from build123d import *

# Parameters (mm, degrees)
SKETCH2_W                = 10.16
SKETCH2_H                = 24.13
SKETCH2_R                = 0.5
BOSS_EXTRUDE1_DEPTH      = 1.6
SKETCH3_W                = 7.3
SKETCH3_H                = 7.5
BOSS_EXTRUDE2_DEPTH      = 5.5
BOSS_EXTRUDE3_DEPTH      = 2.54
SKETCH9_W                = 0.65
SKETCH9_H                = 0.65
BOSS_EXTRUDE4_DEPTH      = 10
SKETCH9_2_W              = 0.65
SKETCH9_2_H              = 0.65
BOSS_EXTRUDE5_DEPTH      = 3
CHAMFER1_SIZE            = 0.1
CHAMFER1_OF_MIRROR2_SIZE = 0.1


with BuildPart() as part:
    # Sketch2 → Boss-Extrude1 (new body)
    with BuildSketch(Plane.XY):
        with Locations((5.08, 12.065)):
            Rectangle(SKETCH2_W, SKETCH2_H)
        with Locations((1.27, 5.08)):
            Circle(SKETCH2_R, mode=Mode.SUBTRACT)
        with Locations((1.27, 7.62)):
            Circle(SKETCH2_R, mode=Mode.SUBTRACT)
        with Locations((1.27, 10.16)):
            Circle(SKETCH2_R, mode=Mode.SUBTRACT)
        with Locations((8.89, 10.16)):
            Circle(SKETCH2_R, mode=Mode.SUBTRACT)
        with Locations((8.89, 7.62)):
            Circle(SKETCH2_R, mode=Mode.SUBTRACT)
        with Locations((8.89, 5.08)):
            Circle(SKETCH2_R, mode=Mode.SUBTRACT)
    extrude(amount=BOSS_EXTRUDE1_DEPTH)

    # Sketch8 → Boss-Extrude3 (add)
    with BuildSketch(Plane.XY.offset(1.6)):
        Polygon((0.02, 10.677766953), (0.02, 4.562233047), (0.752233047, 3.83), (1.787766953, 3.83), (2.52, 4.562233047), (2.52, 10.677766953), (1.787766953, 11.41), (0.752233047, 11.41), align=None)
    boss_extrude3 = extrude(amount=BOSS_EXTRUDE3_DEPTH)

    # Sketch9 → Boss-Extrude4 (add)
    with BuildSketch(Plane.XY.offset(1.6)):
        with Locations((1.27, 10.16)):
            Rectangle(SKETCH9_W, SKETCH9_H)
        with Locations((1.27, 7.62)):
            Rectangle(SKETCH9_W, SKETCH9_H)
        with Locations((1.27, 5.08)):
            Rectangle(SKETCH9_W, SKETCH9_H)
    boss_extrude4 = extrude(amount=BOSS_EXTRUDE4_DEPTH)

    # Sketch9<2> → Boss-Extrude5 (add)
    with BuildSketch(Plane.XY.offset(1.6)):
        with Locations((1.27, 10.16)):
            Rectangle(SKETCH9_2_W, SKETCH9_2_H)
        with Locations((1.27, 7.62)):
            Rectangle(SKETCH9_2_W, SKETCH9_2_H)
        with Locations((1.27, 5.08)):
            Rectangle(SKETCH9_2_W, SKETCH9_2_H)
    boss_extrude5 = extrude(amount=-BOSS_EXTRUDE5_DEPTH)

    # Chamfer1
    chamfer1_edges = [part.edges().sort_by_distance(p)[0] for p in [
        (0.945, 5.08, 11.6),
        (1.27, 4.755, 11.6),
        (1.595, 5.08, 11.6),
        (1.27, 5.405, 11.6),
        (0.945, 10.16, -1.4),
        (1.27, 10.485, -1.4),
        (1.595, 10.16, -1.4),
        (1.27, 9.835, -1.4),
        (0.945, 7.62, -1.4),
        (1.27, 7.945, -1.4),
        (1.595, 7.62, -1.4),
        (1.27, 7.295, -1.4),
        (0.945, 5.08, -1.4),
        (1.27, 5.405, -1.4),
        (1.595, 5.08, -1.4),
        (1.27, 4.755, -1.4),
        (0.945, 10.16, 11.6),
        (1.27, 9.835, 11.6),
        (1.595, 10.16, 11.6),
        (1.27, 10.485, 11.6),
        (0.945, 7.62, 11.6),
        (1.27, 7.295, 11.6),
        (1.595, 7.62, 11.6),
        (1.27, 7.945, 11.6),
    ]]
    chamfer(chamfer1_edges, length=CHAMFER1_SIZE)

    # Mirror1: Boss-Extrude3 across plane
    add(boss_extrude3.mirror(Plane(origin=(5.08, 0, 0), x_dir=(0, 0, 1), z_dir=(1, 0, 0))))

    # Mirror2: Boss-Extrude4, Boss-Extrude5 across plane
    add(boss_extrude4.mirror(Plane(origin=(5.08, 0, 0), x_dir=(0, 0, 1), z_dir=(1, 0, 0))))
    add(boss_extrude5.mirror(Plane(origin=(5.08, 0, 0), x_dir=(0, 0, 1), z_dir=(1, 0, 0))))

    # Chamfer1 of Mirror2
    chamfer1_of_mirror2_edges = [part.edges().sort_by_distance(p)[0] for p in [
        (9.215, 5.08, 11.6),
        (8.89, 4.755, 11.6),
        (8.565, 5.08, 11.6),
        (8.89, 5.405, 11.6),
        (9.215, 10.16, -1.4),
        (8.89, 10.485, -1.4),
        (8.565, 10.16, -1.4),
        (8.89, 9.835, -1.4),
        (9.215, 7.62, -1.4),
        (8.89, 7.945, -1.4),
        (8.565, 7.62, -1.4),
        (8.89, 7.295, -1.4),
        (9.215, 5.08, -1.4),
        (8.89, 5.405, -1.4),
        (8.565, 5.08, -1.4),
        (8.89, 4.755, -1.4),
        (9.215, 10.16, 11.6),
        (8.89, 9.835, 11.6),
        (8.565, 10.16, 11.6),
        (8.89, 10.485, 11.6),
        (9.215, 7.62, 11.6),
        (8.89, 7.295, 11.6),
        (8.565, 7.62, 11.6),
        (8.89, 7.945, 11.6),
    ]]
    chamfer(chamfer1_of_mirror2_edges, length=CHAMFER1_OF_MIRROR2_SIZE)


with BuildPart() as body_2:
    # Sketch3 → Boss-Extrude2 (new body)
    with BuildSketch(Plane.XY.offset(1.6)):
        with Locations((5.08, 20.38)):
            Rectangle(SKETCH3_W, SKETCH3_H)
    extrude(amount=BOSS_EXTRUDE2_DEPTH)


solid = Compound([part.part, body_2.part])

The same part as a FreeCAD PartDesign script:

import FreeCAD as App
import Part
import Sketcher


def edges_at(feature, points):
    """Names of the edges that pass closest to the given points."""
    edges = feature.Shape.Edges
    near = lambda p: min(range(len(edges)), key=lambda i: edges[i].distToShape(Part.Vertex(*p))[0])
    return sorted({f"Edge{near(p) + 1}" for p in points})

doc = App.newDocument("Part")
body = doc.addObject("PartDesign::Body", "Body")

sketch1 = doc.addObject("Sketcher::SketchObject", "Sketch")
body.addObject(sketch1)
sketch1.AttachmentSupport = (doc.XY_Plane, [""])
sketch1.MapMode = "FlatFace"
sketch1.addGeometry([
    Part.LineSegment(App.Vector(0, 24.13, 0), App.Vector(0, 0, 0)),
    Part.LineSegment(App.Vector(0, 0, 0), App.Vector(10.16, 0, 0)),
    Part.LineSegment(App.Vector(10.16, 0, 0), App.Vector(10.16, 24.13, 0)),
    Part.LineSegment(App.Vector(10.16, 24.13, 0), App.Vector(0, 24.13, 0)),
    Part.Circle(App.Vector(1.27, 5.08, 0), App.Vector(0, 0, 1), 0.5),
    Part.Circle(App.Vector(8.89, 5.08, 0), App.Vector(0, 0, 1), 0.5),
    Part.Circle(App.Vector(1.27, 7.62, 0), App.Vector(0, 0, 1), 0.5),
    Part.Circle(App.Vector(1.27, 10.16, 0), App.Vector(0, 0, 1), 0.5),
    Part.Circle(App.Vector(8.89, 7.62, 0), App.Vector(0, 0, 1), 0.5),
    Part.Circle(App.Vector(8.89, 10.16, 0), App.Vector(0, 0, 1), 0.5),
], False)
sketch1.addConstraint([
    Sketcher.Constraint("Coincident", 0, 2, 1, 1),
    Sketcher.Constraint("Coincident", 1, 2, 2, 1),
    Sketcher.Constraint("Coincident", 2, 2, 3, 1),
    Sketcher.Constraint("Coincident", 3, 2, 0, 1),
    Sketcher.Constraint("Vertical", 0),
    Sketcher.Constraint("Horizontal", 1),
    Sketcher.Constraint("Vertical", 2),
    Sketcher.Constraint("Horizontal", 3),
    Sketcher.Constraint("Coincident", 0, 2, -1, 1),
    Sketcher.Constraint("Equal", 4, 5),
    Sketcher.Constraint("Equal", 5, 6),
    Sketcher.Constraint("Equal", 6, 7),
    Sketcher.Constraint("Equal", 7, 8),
    Sketcher.Constraint("Equal", 8, 9),
    Sketcher.Constraint("Horizontal", 4, 3, 5, 3),
    Sketcher.Constraint("Horizontal", 6, 3, 8, 3),
    Sketcher.Constraint("Horizontal", 7, 3, 9, 3),
    Sketcher.Constraint("Vertical", 4, 3, 6, 3),
    Sketcher.Constraint("Vertical", 6, 3, 7, 3),
    Sketcher.Constraint("Vertical", 5, 3, 8, 3),
    Sketcher.Constraint("Vertical", 8, 3, 9, 3),
    Sketcher.Constraint("Diameter", 4, 1.0),
    Sketcher.Constraint("DistanceX", 1, 1, 1, 2, 10.16),
    Sketcher.Constraint("DistanceY", 0, 2, 0, 1, 24.13),
    Sketcher.Constraint("DistanceX", -1, 1, 4, 3, 1.27),
    Sketcher.Constraint("DistanceY", -1, 1, 4, 3, 5.08),
    Sketcher.Constraint("DistanceX", -1, 1, 5, 3, 8.89),
    Sketcher.Constraint("DistanceY", -1, 1, 6, 3, 7.62),
    Sketcher.Constraint("DistanceY", -1, 1, 7, 3, 10.16),
])
pad1 = doc.addObject("PartDesign::Pad", "Pad")
body.addObject(pad1)
pad1.Profile = sketch1
pad1.Length = 1.6

sketch2 = doc.addObject("Sketcher::SketchObject", "Sketch001")
body.addObject(sketch2)
sketch2.AttachmentSupport = (doc.XY_Plane, [""])
sketch2.MapMode = "FlatFace"
sketch2.AttachmentOffset = App.Placement(App.Vector(0, 0, 1.6), App.Rotation())
sketch2.addGeometry([
    Part.LineSegment(App.Vector(0.02, 10.677767, 0), App.Vector(0.02, 4.562233, 0)),
    Part.LineSegment(App.Vector(0.02, 4.562233, 0), App.Vector(0.752233, 3.83, 0)),
    Part.LineSegment(App.Vector(0.752233, 3.83, 0), App.Vector(1.787767, 3.83, 0)),
    Part.LineSegment(App.Vector(1.787767, 3.83, 0), App.Vector(2.52, 4.562233, 0)),
    Part.LineSegment(App.Vector(2.52, 4.562233, 0), App.Vector(2.52, 10.677767, 0)),
    Part.LineSegment(App.Vector(2.52, 10.677767, 0), App.Vector(1.787767, 11.41, 0)),
    Part.LineSegment(App.Vector(1.787767, 11.41, 0), App.Vector(0.752233, 11.41, 0)),
    Part.LineSegment(App.Vector(0.752233, 11.41, 0), App.Vector(0.02, 10.677767, 0)),
], False)
sketch2.addConstraint([
    Sketcher.Constraint("Coincident", 0, 2, 1, 1),
    Sketcher.Constraint("Coincident", 1, 2, 2, 1),
    Sketcher.Constraint("Coincident", 2, 2, 3, 1),
    Sketcher.Constraint("Coincident", 3, 2, 4, 1),
    Sketcher.Constraint("Coincident", 4, 2, 5, 1),
    Sketcher.Constraint("Coincident", 5, 2, 6, 1),
    Sketcher.Constraint("Coincident", 6, 2, 7, 1),
    Sketcher.Constraint("Coincident", 7, 2, 0, 1),
    Sketcher.Constraint("Vertical", 0),
    Sketcher.Constraint("Horizontal", 2),
    Sketcher.Constraint("Vertical", 4),
    Sketcher.Constraint("Horizontal", 6),
    Sketcher.Constraint("Perpendicular", 1, 3),
    Sketcher.Constraint("Perpendicular", 3, 5),
    Sketcher.Constraint("Perpendicular", 5, 7),
    Sketcher.Constraint("Horizontal", 0, 2, 3, 2),
    Sketcher.Constraint("Horizontal", 4, 2, 7, 2),
    Sketcher.Constraint("Vertical", 2, 2, 5, 2),
    Sketcher.Constraint("Vertical", 1, 2, 6, 2),
    Sketcher.Constraint("DistanceX", 0, 2, 3, 2, 2.5),
    Sketcher.Constraint("DistanceX", -1, 1, 0, 2, 0.02),
    Sketcher.Constraint("DistanceY", -1, 1, 1, 2, 3.83),
    Sketcher.Constraint("DistanceY", -1, 1, 5, 2, 11.41),
    Sketcher.Constraint("DistanceX", 2, 1, 2, 2, 1.035534),
])
pad2 = doc.addObject("PartDesign::Pad", "Pad001")
body.addObject(pad2)
pad2.Profile = sketch2
pad2.Length = 2.54

sketch3 = doc.addObject("Sketcher::SketchObject", "Sketch002")
body.addObject(sketch3)
sketch3.AttachmentSupport = (doc.XY_Plane, [""])
sketch3.MapMode = "FlatFace"
sketch3.AttachmentOffset = App.Placement(App.Vector(0, 0, 1.6), App.Rotation())
sketch3.addGeometry([
    Part.LineSegment(App.Vector(0.945, 10.485, 0), App.Vector(0.945, 9.835, 0)),
    Part.LineSegment(App.Vector(0.945, 9.835, 0), App.Vector(1.595, 9.835, 0)),
    Part.LineSegment(App.Vector(1.595, 9.835, 0), App.Vector(1.595, 10.485, 0)),
    Part.LineSegment(App.Vector(1.595, 10.485, 0), App.Vector(0.945, 10.485, 0)),
    Part.LineSegment(App.Vector(0.945, 7.945, 0), App.Vector(0.945, 7.295, 0)),
    Part.LineSegment(App.Vector(0.945, 7.295, 0), App.Vector(1.595, 7.295, 0)),
    Part.LineSegment(App.Vector(1.595, 7.295, 0), App.Vector(1.595, 7.945, 0)),
    Part.LineSegment(App.Vector(1.595, 7.945, 0), App.Vector(0.945, 7.945, 0)),
    Part.LineSegment(App.Vector(0.945, 5.405, 0), App.Vector(0.945, 4.755, 0)),
    Part.LineSegment(App.Vector(0.945, 4.755, 0), App.Vector(1.595, 4.755, 0)),
    Part.LineSegment(App.Vector(1.595, 4.755, 0), App.Vector(1.595, 5.405, 0)),
    Part.LineSegment(App.Vector(1.595, 5.405, 0), App.Vector(0.945, 5.405, 0)),
], False)
sketch3.addConstraint([
    Sketcher.Constraint("Coincident", 0, 2, 1, 1),
    Sketcher.Constraint("Coincident", 1, 2, 2, 1),
    Sketcher.Constraint("Coincident", 2, 2, 3, 1),
    Sketcher.Constraint("Coincident", 3, 2, 0, 1),
    Sketcher.Constraint("Coincident", 4, 2, 5, 1),
    Sketcher.Constraint("Coincident", 5, 2, 6, 1),
    Sketcher.Constraint("Coincident", 6, 2, 7, 1),
    Sketcher.Constraint("Coincident", 7, 2, 4, 1),
    Sketcher.Constraint("Coincident", 8, 2, 9, 1),
    Sketcher.Constraint("Coincident", 9, 2, 10, 1),
    Sketcher.Constraint("Coincident", 10, 2, 11, 1),
    Sketcher.Constraint("Coincident", 11, 2, 8, 1),
    Sketcher.Constraint("Vertical", 0),
    Sketcher.Constraint("Horizontal", 1),
    Sketcher.Constraint("Vertical", 2),
    Sketcher.Constraint("Horizontal", 3),
    Sketcher.Constraint("Vertical", 4),
    Sketcher.Constraint("Horizontal", 5),
    Sketcher.Constraint("Vertical", 6),
    Sketcher.Constraint("Horizontal", 7),
    Sketcher.Constraint("Vertical", 8),
    Sketcher.Constraint("Horizontal", 9),
    Sketcher.Constraint("Vertical", 10),
    Sketcher.Constraint("Horizontal", 11),
    Sketcher.Constraint("Vertical", 3, 2, 4, 2),
    Sketcher.Constraint("Vertical", 2, 2, 5, 2),
    Sketcher.Constraint("Vertical", 7, 2, 8, 2),
    Sketcher.Constraint("Vertical", 6, 2, 9, 2),
    Sketcher.Constraint("Equal", 11, 0),
    Sketcher.Constraint("Equal", 2, 4),
    Sketcher.Constraint("Equal", 6, 8),
    Sketcher.Constraint("DistanceX", 1, 1, 1, 2, 0.65),
    Sketcher.Constraint("DistanceY", 4, 2, 0, 2, 2.54),
    Sketcher.Constraint("DistanceY", 8, 2, 4, 2, 2.54),
    Sketcher.Constraint("DistanceX", -1, 1, 0, 2, 0.945),
    Sketcher.Constraint("DistanceY", -1, 1, 0, 2, 9.835),
])
pad3 = doc.addObject("PartDesign::Pad", "Pad002")
body.addObject(pad3)
pad3.Profile = sketch3
pad3.Length = 10

sketch4 = doc.addObject("Sketcher::SketchObject", "Sketch003")
body.addObject(sketch4)
sketch4.AttachmentSupport = (doc.XY_Plane, [""])
sketch4.MapMode = "FlatFace"
sketch4.AttachmentOffset = App.Placement(App.Vector(0, 0, 1.6), App.Rotation())
sketch4.addGeometry([
    Part.LineSegment(App.Vector(0.945, 10.485, 0), App.Vector(0.945, 9.835, 0)),
    Part.LineSegment(App.Vector(0.945, 9.835, 0), App.Vector(1.595, 9.835, 0)),
    Part.LineSegment(App.Vector(1.595, 9.835, 0), App.Vector(1.595, 10.485, 0)),
    Part.LineSegment(App.Vector(1.595, 10.485, 0), App.Vector(0.945, 10.485, 0)),
    Part.LineSegment(App.Vector(0.945, 7.945, 0), App.Vector(0.945, 7.295, 0)),
    Part.LineSegment(App.Vector(0.945, 7.295, 0), App.Vector(1.595, 7.295, 0)),
    Part.LineSegment(App.Vector(1.595, 7.295, 0), App.Vector(1.595, 7.945, 0)),
    Part.LineSegment(App.Vector(1.595, 7.945, 0), App.Vector(0.945, 7.945, 0)),
    Part.LineSegment(App.Vector(0.945, 5.405, 0), App.Vector(0.945, 4.755, 0)),
    Part.LineSegment(App.Vector(0.945, 4.755, 0), App.Vector(1.595, 4.755, 0)),
    Part.LineSegment(App.Vector(1.595, 4.755, 0), App.Vector(1.595, 5.405, 0)),
    Part.LineSegment(App.Vector(1.595, 5.405, 0), App.Vector(0.945, 5.405, 0)),
], False)
sketch4.addConstraint([
    Sketcher.Constraint("Coincident", 0, 2, 1, 1),
    Sketcher.Constraint("Coincident", 1, 2, 2, 1),
    Sketcher.Constraint("Coincident", 2, 2, 3, 1),
    Sketcher.Constraint("Coincident", 3, 2, 0, 1),
    Sketcher.Constraint("Coincident", 4, 2, 5, 1),
    Sketcher.Constraint("Coincident", 5, 2, 6, 1),
    Sketcher.Constraint("Coincident", 6, 2, 7, 1),
    Sketcher.Constraint("Coincident", 7, 2, 4, 1),
    Sketcher.Constraint("Coincident", 8, 2, 9, 1),
    Sketcher.Constraint("Coincident", 9, 2, 10, 1),
    Sketcher.Constraint("Coincident", 10, 2, 11, 1),
    Sketcher.Constraint("Coincident", 11, 2, 8, 1),
    Sketcher.Constraint("Vertical", 0),
    Sketcher.Constraint("Horizontal", 1),
    Sketcher.Constraint("Vertical", 2),
    Sketcher.Constraint("Horizontal", 3),
    Sketcher.Constraint("Vertical", 4),
    Sketcher.Constraint("Horizontal", 5),
    Sketcher.Constraint("Vertical", 6),
    Sketcher.Constraint("Horizontal", 7),
    Sketcher.Constraint("Vertical", 8),
    Sketcher.Constraint("Horizontal", 9),
    Sketcher.Constraint("Vertical", 10),
    Sketcher.Constraint("Horizontal", 11),
    Sketcher.Constraint("Vertical", 3, 2, 4, 2),
    Sketcher.Constraint("Vertical", 2, 2, 5, 2),
    Sketcher.Constraint("Vertical", 7, 2, 8, 2),
    Sketcher.Constraint("Vertical", 6, 2, 9, 2),
    Sketcher.Constraint("Equal", 11, 0),
    Sketcher.Constraint("Equal", 2, 4),
    Sketcher.Constraint("Equal", 6, 8),
    Sketcher.Constraint("DistanceX", 1, 1, 1, 2, 0.65),
    Sketcher.Constraint("DistanceY", 4, 2, 0, 2, 2.54),
    Sketcher.Constraint("DistanceY", 8, 2, 4, 2, 2.54),
    Sketcher.Constraint("DistanceX", -1, 1, 0, 2, 0.945),
    Sketcher.Constraint("DistanceY", -1, 1, 0, 2, 9.835),
])
pad4 = doc.addObject("PartDesign::Pad", "Pad003")
body.addObject(pad4)
pad4.Profile = sketch4
pad4.Length = 3
pad4.Reversed = True
doc.recompute()

chamfer = doc.addObject("PartDesign::Chamfer", "Chamfer")
body.addObject(chamfer)
chamfer.Base = (pad4, edges_at(pad4, [
    (0.945, 5.08, 11.6),
    (1.27, 4.755, 11.6),
    (1.595, 5.08, 11.6),
    (1.27, 5.405, 11.6),
    (0.945, 10.16, -1.4),
    (1.27, 10.485, -1.4),
    (1.595, 10.16, -1.4),
    (1.27, 9.835, -1.4),
    (0.945, 7.62, -1.4),
    (1.27, 7.945, -1.4),
    (1.595, 7.62, -1.4),
    (1.27, 7.295, -1.4),
    (0.945, 5.08, -1.4),
    (1.27, 5.405, -1.4),
    (1.595, 5.08, -1.4),
    (1.27, 4.755, -1.4),
    (0.945, 10.16, 11.6),
    (1.27, 9.835, 11.6),
    (1.595, 10.16, 11.6),
    (1.27, 10.485, 11.6),
    (0.945, 7.62, 11.6),
    (1.27, 7.295, 11.6),
    (1.595, 7.62, 11.6),
    (1.27, 7.945, 11.6),
]))
chamfer.Size = 0.1
doc.recompute()

datumplane = doc.addObject("PartDesign::Plane", "DatumPlane")
body.addObject(datumplane)
datumplane.AttachmentSupport = (doc.YZ_Plane, [""])
datumplane.MapMode = "FlatFace"
datumplane.AttachmentOffset = App.Placement(App.Vector(0, 0, 5.08), App.Rotation())
mirrored = doc.addObject("PartDesign::Mirrored", "Mirrored")
body.addObject(mirrored)
mirrored.Originals = [pad2]
mirrored.MirrorPlane = (datumplane, [""])
body.Tip = mirrored
doc.recompute()

datumplane2 = doc.addObject("PartDesign::Plane", "DatumPlane001")
body.addObject(datumplane2)
datumplane2.AttachmentSupport = (doc.YZ_Plane, [""])
datumplane2.MapMode = "FlatFace"
datumplane2.AttachmentOffset = App.Placement(App.Vector(0, 0, 5.08), App.Rotation())
mirrored2 = doc.addObject("PartDesign::Mirrored", "Mirrored001")
body.addObject(mirrored2)
mirrored2.Originals = [pad3, pad4]
mirrored2.MirrorPlane = (datumplane2, [""])
body.Tip = mirrored2
doc.recompute()

chamfer2 = doc.addObject("PartDesign::Chamfer", "Chamfer001")
body.addObject(chamfer2)
chamfer2.Base = (mirrored2, edges_at(mirrored2, [
    (9.215, 5.08, 11.6),
    (8.89, 4.755, 11.6),
    (8.565, 5.08, 11.6),
    (8.89, 5.405, 11.6),
    (9.215, 10.16, -1.4),
    (8.89, 10.485, -1.4),
    (8.565, 10.16, -1.4),
    (8.89, 9.835, -1.4),
    (9.215, 7.62, -1.4),
    (8.89, 7.945, -1.4),
    (8.565, 7.62, -1.4),
    (8.89, 7.295, -1.4),
    (9.215, 5.08, -1.4),
    (8.89, 5.405, -1.4),
    (8.565, 5.08, -1.4),
    (8.89, 4.755, -1.4),
    (9.215, 10.16, 11.6),
    (8.89, 9.835, 11.6),
    (8.565, 10.16, 11.6),
    (8.89, 10.485, 11.6),
    (9.215, 7.62, 11.6),
    (8.89, 7.295, 11.6),
    (8.565, 7.62, 11.6),
    (8.89, 7.945, 11.6),
]))
chamfer2.Size = 0.1
body2 = doc.addObject("PartDesign::Body", "Body001")

sketch5 = doc.addObject("Sketcher::SketchObject", "Sketch004")
body2.addObject(sketch5)
sketch5.AttachmentSupport = (doc.getObject("XY_Plane001"), [""])
sketch5.MapMode = "FlatFace"
sketch5.AttachmentOffset = App.Placement(App.Vector(0, 0, 1.6), App.Rotation())
sketch5.addGeometry([
    Part.LineSegment(App.Vector(1.43, 24.13, 0), App.Vector(1.43, 16.63, 0)),
    Part.LineSegment(App.Vector(1.43, 16.63, 0), App.Vector(8.73, 16.63, 0)),
    Part.LineSegment(App.Vector(8.73, 16.63, 0), App.Vector(8.73, 24.13, 0)),
    Part.LineSegment(App.Vector(8.73, 24.13, 0), App.Vector(1.43, 24.13, 0)),
], False)
sketch5.addConstraint([
    Sketcher.Constraint("Coincident", 0, 2, 1, 1),
    Sketcher.Constraint("Coincident", 1, 2, 2, 1),
    Sketcher.Constraint("Coincident", 2, 2, 3, 1),
    Sketcher.Constraint("Coincident", 3, 2, 0, 1),
    Sketcher.Constraint("Vertical", 0),
    Sketcher.Constraint("Horizontal", 1),
    Sketcher.Constraint("Vertical", 2),
    Sketcher.Constraint("Horizontal", 3),
    Sketcher.Constraint("DistanceX", 1, 1, 1, 2, 7.3),
    Sketcher.Constraint("DistanceY", 0, 2, 0, 1, 7.5),
    Sketcher.Constraint("DistanceX", -1, 1, 0, 2, 1.43),
    Sketcher.Constraint("DistanceY", -1, 1, 0, 2, 16.63),
])
pad5 = doc.addObject("PartDesign::Pad", "Pad004")
body2.addObject(pad5)
pad5.Profile = sketch5
pad5.Length = 5.5

doc.recompute()
